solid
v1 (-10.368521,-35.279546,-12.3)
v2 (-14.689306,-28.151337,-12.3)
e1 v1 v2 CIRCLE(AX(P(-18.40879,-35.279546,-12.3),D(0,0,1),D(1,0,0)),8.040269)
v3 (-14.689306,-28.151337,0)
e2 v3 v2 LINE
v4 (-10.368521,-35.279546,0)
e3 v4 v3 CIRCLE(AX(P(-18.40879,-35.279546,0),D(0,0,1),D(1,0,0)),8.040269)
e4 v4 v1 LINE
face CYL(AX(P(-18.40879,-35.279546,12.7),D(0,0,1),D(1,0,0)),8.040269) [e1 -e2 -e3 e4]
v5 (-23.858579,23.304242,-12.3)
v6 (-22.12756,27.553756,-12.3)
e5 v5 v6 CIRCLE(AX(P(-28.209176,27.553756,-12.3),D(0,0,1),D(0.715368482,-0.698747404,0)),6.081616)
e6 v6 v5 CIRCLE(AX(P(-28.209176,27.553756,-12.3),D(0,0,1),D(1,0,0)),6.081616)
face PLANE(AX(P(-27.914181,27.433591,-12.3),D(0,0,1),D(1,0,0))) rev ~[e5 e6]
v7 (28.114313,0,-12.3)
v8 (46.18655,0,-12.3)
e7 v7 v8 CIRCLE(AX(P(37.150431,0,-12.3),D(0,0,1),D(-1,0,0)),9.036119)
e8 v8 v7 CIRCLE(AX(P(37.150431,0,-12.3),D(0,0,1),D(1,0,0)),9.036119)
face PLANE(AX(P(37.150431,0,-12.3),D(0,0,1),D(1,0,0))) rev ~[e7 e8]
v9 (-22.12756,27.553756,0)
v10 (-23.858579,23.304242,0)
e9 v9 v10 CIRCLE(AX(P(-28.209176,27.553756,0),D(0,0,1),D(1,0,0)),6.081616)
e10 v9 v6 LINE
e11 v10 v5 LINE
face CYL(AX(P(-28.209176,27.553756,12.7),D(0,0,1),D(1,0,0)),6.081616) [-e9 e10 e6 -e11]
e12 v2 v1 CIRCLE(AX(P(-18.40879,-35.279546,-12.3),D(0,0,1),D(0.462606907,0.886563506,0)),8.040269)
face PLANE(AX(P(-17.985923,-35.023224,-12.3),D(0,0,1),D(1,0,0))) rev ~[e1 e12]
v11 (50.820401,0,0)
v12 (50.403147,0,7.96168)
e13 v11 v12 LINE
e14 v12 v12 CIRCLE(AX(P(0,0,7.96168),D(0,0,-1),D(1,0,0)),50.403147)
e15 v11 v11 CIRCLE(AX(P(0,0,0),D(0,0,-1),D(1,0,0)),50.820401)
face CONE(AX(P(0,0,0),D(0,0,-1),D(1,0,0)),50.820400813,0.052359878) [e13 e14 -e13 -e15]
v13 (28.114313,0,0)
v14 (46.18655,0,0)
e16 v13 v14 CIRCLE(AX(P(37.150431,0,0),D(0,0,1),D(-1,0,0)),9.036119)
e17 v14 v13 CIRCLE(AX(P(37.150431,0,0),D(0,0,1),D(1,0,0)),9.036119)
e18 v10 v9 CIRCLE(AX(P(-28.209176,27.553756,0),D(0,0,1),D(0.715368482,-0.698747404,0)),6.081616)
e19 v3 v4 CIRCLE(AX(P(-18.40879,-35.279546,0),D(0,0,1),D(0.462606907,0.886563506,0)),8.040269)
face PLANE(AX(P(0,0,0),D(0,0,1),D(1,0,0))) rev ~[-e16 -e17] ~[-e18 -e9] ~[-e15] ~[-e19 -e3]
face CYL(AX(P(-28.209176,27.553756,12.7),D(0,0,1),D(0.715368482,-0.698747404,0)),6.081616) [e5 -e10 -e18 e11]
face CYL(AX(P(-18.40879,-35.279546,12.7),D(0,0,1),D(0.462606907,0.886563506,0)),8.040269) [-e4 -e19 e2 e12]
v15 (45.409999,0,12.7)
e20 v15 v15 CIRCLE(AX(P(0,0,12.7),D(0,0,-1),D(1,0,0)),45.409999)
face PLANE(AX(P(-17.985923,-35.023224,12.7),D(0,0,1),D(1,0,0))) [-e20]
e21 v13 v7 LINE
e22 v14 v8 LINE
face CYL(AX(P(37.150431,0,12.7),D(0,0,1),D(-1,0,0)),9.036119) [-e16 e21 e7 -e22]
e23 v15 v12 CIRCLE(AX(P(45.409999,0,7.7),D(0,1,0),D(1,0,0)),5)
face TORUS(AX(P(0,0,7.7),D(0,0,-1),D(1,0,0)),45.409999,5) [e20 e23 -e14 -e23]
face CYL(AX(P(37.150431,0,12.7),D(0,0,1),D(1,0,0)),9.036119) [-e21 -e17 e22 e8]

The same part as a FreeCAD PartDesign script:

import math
import FreeCAD as App
import Part
import Sketcher

V = App.Vector
Q = App.Units.Quantity


def edges_at(feature, points):
    """Names of the edges that pass closest to the given points."""
    edges = feature.Shape.Edges
    near = lambda p: min(range(len(edges)), key=lambda i: edges[i].distToShape(Part.Vertex(*p))[0])
    return sorted({f"Edge{near(p) + 1}" for p in points})

doc = App.newDocument("Part")
body = doc.addObject("PartDesign::Body", "Body")

sketch1 = body.newObject("Sketcher::SketchObject", "Sketch")
sketch1.AttachmentSupport = (doc.getObject("XY_Plane"), [""])
sketch1.MapMode = "FlatFace"
sketch1.addGeometry(Part.Circle(V(0, 0, 0), V(0, 0, 1), 51), False)
sketch1.addConstraint([
    Sketcher.Constraint("Coincident", 0, 3, -1, 1),
    Sketcher.Constraint("Diameter", 0, Q("101.640802 mm")),
])
pad1 = body.newObject("PartDesign::Pad", "Pad")
pad1.Profile = sketch1
pad1.Length = 12.7
pad1.TaperAngle = -3

sketch2 = body.newObject("Sketcher::SketchObject", "Sketch001")
sketch2.AttachmentSupport = (doc.getObject("XY_Plane"), [""])
sketch2.MapMode = "FlatFace"
sketch2.AttachmentOffset = App.Placement(V(0, 0, 12.7), App.Rotation())
sketch2.addGeometry([
    Part.ArcOfCircle(Part.Circle(V(-18.4, -35.3, 0), V(0, 0, 1), 8), math.radians(0), math.radians(62)),
    Part.ArcOfCircle(Part.Circle(V(-18.4, -35.3, 0), V(0, 0, 1), 8), math.radians(62), math.radians(360)),
    Part.ArcOfCircle(Part.Circle(V(37.2, 0, 0), V(0, 0, 1), 9), math.radians(0), math.radians(180)),
    Part.ArcOfCircle(Part.Circle(V(37.2, 0, 0), V(0, 0, 1), 9), math.radians(180), math.radians(360)),
    Part.ArcOfCircle(Part.Circle(V(-28.2, 27.6, 0), V(0, 0, 1), 6.1), math.radians(0), math.radians(316)),
    Part.ArcOfCircle(Part.Circle(V(-28.2, 27.6, 0), V(0, 0, 1), 6.1), math.radians(-44), math.radians(0)),
], False)
sketch2.addConstraint([
    Sketcher.Constraint("Tangent", 0, 1, 1, 2),
    Sketcher.Constraint("Coincident", 1, 1, 0, 2),
    Sketcher.Constraint("Tangent", 2, 1, 3, 2),
    Sketcher.Constraint("Coincident", 3, 1, 2, 2),
    Sketcher.Constraint("Tangent", 4, 1, 5, 2),
    Sketcher.Constraint("Coincident", 5, 1, 4, 2),
    Sketcher.Constraint("PointOnObject", 2, 3, -1),
    Sketcher.Constraint("PointOnObject", 2, 1, -1),
    Sketcher.Constraint("PointOnObject", 3, 1, -1),
    Sketcher.Constraint("Horizontal", 1, 3, 0, 1),
    Sketcher.Constraint("Horizontal", 5, 3, 4, 1),
    Sketcher.Constraint("Radius", 0, Q("8.040269 mm")),
    Sketcher.Constraint("Radius", 2, Q("9.036119 mm")),
    Sketcher.Constraint("Radius", 4, Q("6.081616 mm")),
    Sketcher.Constraint("DistanceY", 0, 3, 4, 3, Q("62.833302 mm")),
    Sketcher.Constraint("DistanceX", 0, 3, -1, 1, Q("18.40879 mm")),
    Sketcher.Constraint("DistanceX", -1, 1, 2, 3, Q("37.150431 mm")),
    Sketcher.Constraint("DistanceX", 4, 1, -1, 1, Q("22.12756 mm")),
    Sketcher.Constraint("DistanceX", 5, 1, -1, 1, Q("23.858579 mm")),
    Sketcher.Constraint("DistanceY", 0, 3, 1, 1, Q("7.128209 mm")),
    Sketcher.Constraint("DistanceY", 0, 3, -1, 1, Q("35.279546 mm")),
])
pad2 = body.newObject("PartDesign::Pad", "Pad001")
pad2.Profile = sketch2
pad2.Length = 25
pad2.Reversed = True
doc.recompute()

fillet = body.newObject("PartDesign::Fillet", "Fillet")
fillet.Base = (pad2, edges_at(pad2, [(-50.155, 0, 12.7)]))
fillet.Radius = 5

doc.recompute()
